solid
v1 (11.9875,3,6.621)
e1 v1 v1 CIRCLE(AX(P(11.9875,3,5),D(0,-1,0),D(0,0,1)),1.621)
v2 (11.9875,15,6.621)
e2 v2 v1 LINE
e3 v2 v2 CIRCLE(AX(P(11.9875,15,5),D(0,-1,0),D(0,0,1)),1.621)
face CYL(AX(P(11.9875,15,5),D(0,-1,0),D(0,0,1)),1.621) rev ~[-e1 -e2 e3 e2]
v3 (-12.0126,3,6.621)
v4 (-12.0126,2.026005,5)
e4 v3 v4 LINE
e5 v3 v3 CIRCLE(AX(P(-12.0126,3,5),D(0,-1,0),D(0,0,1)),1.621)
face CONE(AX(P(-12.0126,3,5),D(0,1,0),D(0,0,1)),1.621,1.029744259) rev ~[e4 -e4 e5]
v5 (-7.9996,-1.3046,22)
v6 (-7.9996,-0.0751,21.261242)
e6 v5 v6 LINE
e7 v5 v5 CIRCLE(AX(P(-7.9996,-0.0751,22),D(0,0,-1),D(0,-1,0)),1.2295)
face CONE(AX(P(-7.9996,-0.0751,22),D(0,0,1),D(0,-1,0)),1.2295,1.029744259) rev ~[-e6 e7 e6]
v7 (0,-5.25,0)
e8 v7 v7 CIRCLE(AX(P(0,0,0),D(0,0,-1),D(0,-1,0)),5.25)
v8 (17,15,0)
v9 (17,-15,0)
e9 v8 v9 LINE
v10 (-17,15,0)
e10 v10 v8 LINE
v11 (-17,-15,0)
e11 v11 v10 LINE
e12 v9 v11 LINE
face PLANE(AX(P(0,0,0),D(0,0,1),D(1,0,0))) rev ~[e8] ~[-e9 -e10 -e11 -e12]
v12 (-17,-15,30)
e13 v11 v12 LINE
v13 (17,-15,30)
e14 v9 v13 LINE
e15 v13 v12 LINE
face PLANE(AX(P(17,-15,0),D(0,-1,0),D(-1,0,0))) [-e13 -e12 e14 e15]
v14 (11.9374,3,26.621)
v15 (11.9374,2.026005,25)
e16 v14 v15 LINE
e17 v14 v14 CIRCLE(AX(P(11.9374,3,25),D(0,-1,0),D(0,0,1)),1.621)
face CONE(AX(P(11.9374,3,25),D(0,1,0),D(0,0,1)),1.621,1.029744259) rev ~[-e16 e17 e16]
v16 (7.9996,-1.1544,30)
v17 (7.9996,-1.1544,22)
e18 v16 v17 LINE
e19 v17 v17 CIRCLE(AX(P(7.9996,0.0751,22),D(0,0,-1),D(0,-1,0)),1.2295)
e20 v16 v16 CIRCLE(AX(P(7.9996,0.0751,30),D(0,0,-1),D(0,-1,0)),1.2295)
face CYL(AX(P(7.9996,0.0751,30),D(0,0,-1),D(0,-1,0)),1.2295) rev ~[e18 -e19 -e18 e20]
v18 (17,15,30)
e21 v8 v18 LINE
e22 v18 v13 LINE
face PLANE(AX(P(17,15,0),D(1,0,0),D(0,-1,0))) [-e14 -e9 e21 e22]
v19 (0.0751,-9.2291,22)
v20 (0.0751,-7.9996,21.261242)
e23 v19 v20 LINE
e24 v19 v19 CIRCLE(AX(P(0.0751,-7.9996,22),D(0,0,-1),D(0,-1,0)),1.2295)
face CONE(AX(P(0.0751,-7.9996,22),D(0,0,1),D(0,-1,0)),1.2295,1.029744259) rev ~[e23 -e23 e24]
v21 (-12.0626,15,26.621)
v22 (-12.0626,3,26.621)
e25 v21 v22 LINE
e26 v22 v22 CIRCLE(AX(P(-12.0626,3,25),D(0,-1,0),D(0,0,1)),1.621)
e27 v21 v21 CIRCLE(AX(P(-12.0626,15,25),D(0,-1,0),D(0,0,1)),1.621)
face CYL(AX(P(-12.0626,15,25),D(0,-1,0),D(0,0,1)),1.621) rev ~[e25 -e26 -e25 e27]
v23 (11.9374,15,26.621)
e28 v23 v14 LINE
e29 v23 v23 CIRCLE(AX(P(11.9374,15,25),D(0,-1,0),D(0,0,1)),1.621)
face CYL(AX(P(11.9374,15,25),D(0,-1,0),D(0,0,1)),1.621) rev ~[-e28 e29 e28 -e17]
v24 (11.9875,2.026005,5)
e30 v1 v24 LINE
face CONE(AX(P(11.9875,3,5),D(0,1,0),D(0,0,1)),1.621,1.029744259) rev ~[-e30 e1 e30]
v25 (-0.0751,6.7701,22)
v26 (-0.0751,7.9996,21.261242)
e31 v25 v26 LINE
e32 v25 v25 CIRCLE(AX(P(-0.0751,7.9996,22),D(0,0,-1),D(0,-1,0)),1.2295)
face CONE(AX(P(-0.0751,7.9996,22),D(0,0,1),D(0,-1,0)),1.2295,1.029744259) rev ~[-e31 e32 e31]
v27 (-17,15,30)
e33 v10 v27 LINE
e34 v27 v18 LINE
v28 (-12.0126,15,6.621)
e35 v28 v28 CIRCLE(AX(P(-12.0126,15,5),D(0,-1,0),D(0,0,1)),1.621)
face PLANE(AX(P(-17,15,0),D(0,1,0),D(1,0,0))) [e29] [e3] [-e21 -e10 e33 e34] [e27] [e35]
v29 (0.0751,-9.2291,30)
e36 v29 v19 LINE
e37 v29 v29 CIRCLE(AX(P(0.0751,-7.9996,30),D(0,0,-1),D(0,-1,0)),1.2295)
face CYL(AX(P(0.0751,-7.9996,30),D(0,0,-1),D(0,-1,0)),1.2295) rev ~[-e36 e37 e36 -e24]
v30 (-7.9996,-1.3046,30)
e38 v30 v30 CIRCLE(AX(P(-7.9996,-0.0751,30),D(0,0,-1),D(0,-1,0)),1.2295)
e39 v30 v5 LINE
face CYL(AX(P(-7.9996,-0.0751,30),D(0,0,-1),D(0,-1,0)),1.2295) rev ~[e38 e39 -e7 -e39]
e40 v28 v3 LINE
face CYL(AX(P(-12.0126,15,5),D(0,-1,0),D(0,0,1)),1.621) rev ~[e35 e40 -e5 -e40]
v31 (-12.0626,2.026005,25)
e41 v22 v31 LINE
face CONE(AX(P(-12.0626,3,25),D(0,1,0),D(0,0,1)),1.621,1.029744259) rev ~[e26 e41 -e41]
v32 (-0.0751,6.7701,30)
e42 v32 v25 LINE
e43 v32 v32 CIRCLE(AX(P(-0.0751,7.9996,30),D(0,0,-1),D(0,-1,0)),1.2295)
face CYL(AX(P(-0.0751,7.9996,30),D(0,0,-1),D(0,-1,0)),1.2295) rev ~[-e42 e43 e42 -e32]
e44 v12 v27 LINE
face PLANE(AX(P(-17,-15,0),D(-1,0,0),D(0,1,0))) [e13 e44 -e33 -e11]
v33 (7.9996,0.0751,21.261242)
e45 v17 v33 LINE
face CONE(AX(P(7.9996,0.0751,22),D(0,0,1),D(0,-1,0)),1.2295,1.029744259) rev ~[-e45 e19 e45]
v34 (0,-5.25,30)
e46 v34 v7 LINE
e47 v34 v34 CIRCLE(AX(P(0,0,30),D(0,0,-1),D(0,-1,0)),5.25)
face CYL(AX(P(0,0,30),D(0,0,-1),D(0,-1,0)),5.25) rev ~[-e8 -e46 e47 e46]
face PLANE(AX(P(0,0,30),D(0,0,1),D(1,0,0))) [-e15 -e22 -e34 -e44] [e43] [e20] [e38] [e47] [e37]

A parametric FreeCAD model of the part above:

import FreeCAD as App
import Part
import Sketcher

V = App.Vector
Q = App.Units.Quantity


def add_polygon(sketch, points):
    """Adds a closed chain of lines whose ends are joined by coincident constraints."""
    first, n = sketch.GeometryCount, len(points)
    for a, b in zip(points, points[1:] + points[:1]):
        sketch.addGeometry(Part.LineSegment(App.Vector(*a, 0), App.Vector(*b, 0)), False)
    for i in range(n):
        sketch.addConstraint(Sketcher.Constraint("Coincident", first + i, 2, first + (i + 1) % n, 1))

doc = App.newDocument("Part")
params = doc.addObject("Spreadsheet::Sheet", "Params")
for row, (alias, value) in enumerate([
    ("sketch1_width", "34 mm"),
    ("sketch1_height", "30 mm"),
    ("pad1_length", "30 mm"),
    ("hole_diameter", "2.459 mm"),
    ("hole_depth", "8 mm"),
    ("sketch3_diameter", "10.5 mm"),
    ("hole2_diameter", "10.5 mm"),
    ("hole3_diameter", "3.242 mm"),
    ("hole3_depth", "12 mm"),
], start=1):
    params.set(f"A{row}", alias)
    params.set(f"B{row}", "=" + value)
    params.setAlias(f"B{row}", alias)

body = doc.addObject("PartDesign::Body", "Body")

# Sketch on XY plane
sketch1 = body.newObject("Sketcher::SketchObject", "Sketch")
sketch1.AttachmentSupport = (doc.getObject("XY_Plane"), [""])
sketch1.MapMode = "FlatFace"
add_polygon(sketch1, [(17, 15), (-17, 15), (-17, -15), (17, -15)])  # lines 0-3
sketch1.addConstraint([
    Sketcher.Constraint("Horizontal", 0),
    Sketcher.Constraint("Vertical", 1),
    Sketcher.Constraint("Horizontal", 2),
    Sketcher.Constraint("Vertical", 3),
    Sketcher.Constraint("Symmetric", 0, 2, 2, 2, -1, 1),
    Sketcher.Constraint("DistanceX", 0, 2, 0, 1, Q("34 mm")),
    Sketcher.Constraint("DistanceY", 1, 2, 1, 1, Q("30 mm")),
])
sketch1.setExpression("Constraints[9]", "Params.sketch1_width")
sketch1.setExpression("Constraints[10]", "Params.sketch1_height")
pad1 = body.newObject("PartDesign::Pad", "Pad")
pad1.Profile = sketch1
pad1.setExpression("Length", "Params.pad1_length")

# Sketch on XY plane
sketch2 = body.newObject("Sketcher::SketchObject", "Sketch001")
sketch2.AttachmentSupport = (doc.getObject("XY_Plane"), [""])
sketch2.MapMode = "FlatFace"
sketch2.AttachmentOffset = App.Placement(V(0, 0, 30), App.Rotation())
sketch2.addGeometry([
    Part.Circle(V(-0.1, 8, 0), V(0, 0, 1), 1.2),
    Part.Circle(V(-8, -0.1, 0), V(0, 0, 1), 1.2),
    Part.Circle(V(8, 0.1, 0), V(0, 0, 1), 1.2),
    Part.Circle(V(0.1, -8, 0), V(0, 0, 1), 1.2),
], False)
sketch2.addConstraint([
    Sketcher.Constraint("Equal", 0, 1),
    Sketcher.Constraint("Equal", 1, 2),
    Sketcher.Constraint("Equal", 2, 3),
    Sketcher.Constraint("Symmetric", 1, 3, 2, 3, -1, 1),
    Sketcher.Constraint("Symmetric", 0, 3, 3, 3, -1, 1),
    Sketcher.Constraint("Diameter", 0, Q("2.459 mm")),
    Sketcher.Constraint("DistanceX", 0, 3, -1, 1, Q("0.075 mm")),
    Sketcher.Constraint("DistanceY", 1, 3, -1, 1, Q("0.075 mm")),
    Sketcher.Constraint("DistanceY", -1, 1, 0, 3, Q("7.9996 mm")),
    Sketcher.Constraint("DistanceX", 1, 3, -1, 1, Q("7.9996 mm")),
])
doc.recompute()
hole = body.newObject("PartDesign::Hole", "Hole")
hole.Profile = sketch2
hole.ThreadType = "None"
hole.setExpression("Diameter", "Params.hole_diameter")
hole.DepthType = "Dimension"
hole.setExpression("Depth", "Params.hole_depth")
hole.DrillPoint = "Angled"
hole.DrillPointAngle = 118

# Sketch on XY plane
sketch3 = body.newObject("Sketcher::SketchObject", "Sketch002")
sketch3.AttachmentSupport = (doc.getObject("XY_Plane"), [""])
sketch3.MapMode = "FlatFace"
sketch3.AttachmentOffset = App.Placement(V(0, 0, 30), App.Rotation())
sketch3.addGeometry(Part.Circle(V(0, 0, 0), V(0, 0, 1), 5), False)
sketch3.addConstraint([
    Sketcher.Constraint("Coincident", 0, 3, -1, 1),
    Sketcher.Constraint("Diameter", 0, Q("10.5 mm")),
])
sketch3.setExpression("Constraints[1]", "Params.sketch3_diameter")
doc.recompute()
hole2 = body.newObject("PartDesign::Hole", "Hole001")
hole2.Profile = sketch3
hole2.ThreadType = "None"
hole2.setExpression("Diameter", "Params.hole2_diameter")
hole2.DepthType = "ThroughAll"

# Sketch on XZ plane
sketch4 = body.newObject("Sketcher::SketchObject", "Sketch003")
sketch4.AttachmentSupport = (doc.getObject("XZ_Plane"), [""])
sketch4.MapMode = "FlatFace"
sketch4.AttachmentOffset = App.Placement(V(0, 0, -15), App.Rotation())
sketch4.addGeometry([
    Part.Circle(V(-12.1, 25, 0), V(0, 0, 1), 1.6),
    Part.Circle(V(-12, 5, 0), V(0, 0, 1), 1.6),
    Part.Circle(V(12, 5, 0), V(0, 0, 1), 1.6),
    Part.Circle(V(11.9, 25, 0), V(0, 0, 1), 1.6),
], False)
sketch4.addConstraint([
    Sketcher.Constraint("Equal", 0, 1),
    Sketcher.Constraint("Equal", 1, 2),
    Sketcher.Constraint("Equal", 2, 3),
    Sketcher.Constraint("Horizontal", 1, 3, 2, 3),
    Sketcher.Constraint("Horizontal", 0, 3, 3, 3),
    Sketcher.Constraint("Diameter", 0, Q("3.242 mm")),
    Sketcher.Constraint("DistanceY", -1, 1, 0, 3, Q("25 mm")),
    Sketcher.Constraint("DistanceY", -1, 1, 1, 3, Q("5 mm")),
    Sketcher.Constraint("DistanceX", 1, 3, 2, 3, Q("24 mm")),
    Sketcher.Constraint("DistanceX", 0, 3, 3, 3, Q("24 mm")),
    Sketcher.Constraint("DistanceX", 0, 3, 1, 3, Q("0.05 mm")),
    Sketcher.Constraint("DistanceX", 0, 3, -1, 1, Q("12.0626 mm")),
])
doc.recompute()
hole3 = body.newObject("PartDesign::Hole", "Hole002")
hole3.Profile = sketch4
hole3.ThreadType = "None"
hole3.setExpression("Diameter", "Params.hole3_diameter")
hole3.DepthType = "Dimension"
hole3.setExpression("Depth", "Params.hole3_depth")
hole3.DrillPoint = "Angled"
hole3.DrillPointAngle = 118
hole3.Reversed = True

doc.recompute()
